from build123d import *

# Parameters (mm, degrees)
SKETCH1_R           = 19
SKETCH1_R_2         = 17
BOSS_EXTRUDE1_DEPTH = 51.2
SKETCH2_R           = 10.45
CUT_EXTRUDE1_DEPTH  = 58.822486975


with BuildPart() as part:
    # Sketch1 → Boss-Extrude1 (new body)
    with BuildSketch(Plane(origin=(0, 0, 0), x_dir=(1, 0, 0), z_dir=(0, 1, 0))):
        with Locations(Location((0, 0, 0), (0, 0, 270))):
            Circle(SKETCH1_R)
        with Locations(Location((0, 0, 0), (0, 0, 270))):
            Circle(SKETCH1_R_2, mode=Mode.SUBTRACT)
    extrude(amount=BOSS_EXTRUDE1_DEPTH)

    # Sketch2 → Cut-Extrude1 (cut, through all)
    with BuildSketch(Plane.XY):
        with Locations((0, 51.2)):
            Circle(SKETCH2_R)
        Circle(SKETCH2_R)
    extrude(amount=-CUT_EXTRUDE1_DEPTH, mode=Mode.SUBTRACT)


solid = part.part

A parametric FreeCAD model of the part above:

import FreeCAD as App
import Part
import Sketcher
from FreeCAD import Vector

doc = App.newDocument("Part")
body = doc.addObject("PartDesign::Body", "Body")

# Sketch on XZ plane
sketch1 = doc.addObject("Sketcher::SketchObject", "Sketch")
body.addObject(sketch1)
sketch1.AttachmentSupport = (doc.XZ_Plane, [""])
sketch1.MapMode = "FlatFace"
sketch1.addGeometry(Part.Circle(Vector(0, 0, 0), Vector(0, 0, 1), 19), False)
sketch1.addGeometry(Part.Circle(Vector(0, 0, 0), Vector(0, 0, 1), 17), False)
sketch1.addConstraint(Sketcher.Constraint("Coincident", 0, 3, -1, 1))
sketch1.addConstraint(Sketcher.Constraint("Coincident", 1, 3, -1, 1))
sketch1.addConstraint(Sketcher.Constraint("Diameter", 0, 38.0))
sketch1.addConstraint(Sketcher.Constraint("Diameter", 1, 34.0))
pad1 = doc.addObject("PartDesign::Pad", "Pad")
body.addObject(pad1)
pad1.Profile = sketch1
pad1.Length = 51.2
pad1.Reversed = True

# Sketch on XY plane
sketch2 = doc.addObject("Sketcher::SketchObject", "Sketch001")
body.addObject(sketch2)
sketch2.AttachmentSupport = (doc.XY_Plane, [""])
sketch2.MapMode = "FlatFace"
sketch2.addGeometry(Part.Circle(Vector(0, 51, 0), Vector(0, 0, 1), 10), False)
sketch2.addGeometry(Part.Circle(Vector(0, 0, 0), Vector(0, 0, 1), 10), False)
sketch2.addConstraint(Sketcher.Constraint("Coincident", 1, 3, -1, 1))
sketch2.addConstraint(Sketcher.Constraint("Equal", 0, 1))
sketch2.addConstraint(Sketcher.Constraint("PointOnObject", 0, 3, -2))
sketch2.addConstraint(Sketcher.Constraint("Diameter", 0, 20.9))
sketch2.addConstraint(Sketcher.Constraint("DistanceY", -1, 1, 0, 3, 51.2))
pocket1 = doc.addObject("PartDesign::Pocket", "Pocket")
body.addObject(pocket1)
pocket1.Profile = sketch2
pocket1.Type = "ThroughAll"

doc.recompute()
